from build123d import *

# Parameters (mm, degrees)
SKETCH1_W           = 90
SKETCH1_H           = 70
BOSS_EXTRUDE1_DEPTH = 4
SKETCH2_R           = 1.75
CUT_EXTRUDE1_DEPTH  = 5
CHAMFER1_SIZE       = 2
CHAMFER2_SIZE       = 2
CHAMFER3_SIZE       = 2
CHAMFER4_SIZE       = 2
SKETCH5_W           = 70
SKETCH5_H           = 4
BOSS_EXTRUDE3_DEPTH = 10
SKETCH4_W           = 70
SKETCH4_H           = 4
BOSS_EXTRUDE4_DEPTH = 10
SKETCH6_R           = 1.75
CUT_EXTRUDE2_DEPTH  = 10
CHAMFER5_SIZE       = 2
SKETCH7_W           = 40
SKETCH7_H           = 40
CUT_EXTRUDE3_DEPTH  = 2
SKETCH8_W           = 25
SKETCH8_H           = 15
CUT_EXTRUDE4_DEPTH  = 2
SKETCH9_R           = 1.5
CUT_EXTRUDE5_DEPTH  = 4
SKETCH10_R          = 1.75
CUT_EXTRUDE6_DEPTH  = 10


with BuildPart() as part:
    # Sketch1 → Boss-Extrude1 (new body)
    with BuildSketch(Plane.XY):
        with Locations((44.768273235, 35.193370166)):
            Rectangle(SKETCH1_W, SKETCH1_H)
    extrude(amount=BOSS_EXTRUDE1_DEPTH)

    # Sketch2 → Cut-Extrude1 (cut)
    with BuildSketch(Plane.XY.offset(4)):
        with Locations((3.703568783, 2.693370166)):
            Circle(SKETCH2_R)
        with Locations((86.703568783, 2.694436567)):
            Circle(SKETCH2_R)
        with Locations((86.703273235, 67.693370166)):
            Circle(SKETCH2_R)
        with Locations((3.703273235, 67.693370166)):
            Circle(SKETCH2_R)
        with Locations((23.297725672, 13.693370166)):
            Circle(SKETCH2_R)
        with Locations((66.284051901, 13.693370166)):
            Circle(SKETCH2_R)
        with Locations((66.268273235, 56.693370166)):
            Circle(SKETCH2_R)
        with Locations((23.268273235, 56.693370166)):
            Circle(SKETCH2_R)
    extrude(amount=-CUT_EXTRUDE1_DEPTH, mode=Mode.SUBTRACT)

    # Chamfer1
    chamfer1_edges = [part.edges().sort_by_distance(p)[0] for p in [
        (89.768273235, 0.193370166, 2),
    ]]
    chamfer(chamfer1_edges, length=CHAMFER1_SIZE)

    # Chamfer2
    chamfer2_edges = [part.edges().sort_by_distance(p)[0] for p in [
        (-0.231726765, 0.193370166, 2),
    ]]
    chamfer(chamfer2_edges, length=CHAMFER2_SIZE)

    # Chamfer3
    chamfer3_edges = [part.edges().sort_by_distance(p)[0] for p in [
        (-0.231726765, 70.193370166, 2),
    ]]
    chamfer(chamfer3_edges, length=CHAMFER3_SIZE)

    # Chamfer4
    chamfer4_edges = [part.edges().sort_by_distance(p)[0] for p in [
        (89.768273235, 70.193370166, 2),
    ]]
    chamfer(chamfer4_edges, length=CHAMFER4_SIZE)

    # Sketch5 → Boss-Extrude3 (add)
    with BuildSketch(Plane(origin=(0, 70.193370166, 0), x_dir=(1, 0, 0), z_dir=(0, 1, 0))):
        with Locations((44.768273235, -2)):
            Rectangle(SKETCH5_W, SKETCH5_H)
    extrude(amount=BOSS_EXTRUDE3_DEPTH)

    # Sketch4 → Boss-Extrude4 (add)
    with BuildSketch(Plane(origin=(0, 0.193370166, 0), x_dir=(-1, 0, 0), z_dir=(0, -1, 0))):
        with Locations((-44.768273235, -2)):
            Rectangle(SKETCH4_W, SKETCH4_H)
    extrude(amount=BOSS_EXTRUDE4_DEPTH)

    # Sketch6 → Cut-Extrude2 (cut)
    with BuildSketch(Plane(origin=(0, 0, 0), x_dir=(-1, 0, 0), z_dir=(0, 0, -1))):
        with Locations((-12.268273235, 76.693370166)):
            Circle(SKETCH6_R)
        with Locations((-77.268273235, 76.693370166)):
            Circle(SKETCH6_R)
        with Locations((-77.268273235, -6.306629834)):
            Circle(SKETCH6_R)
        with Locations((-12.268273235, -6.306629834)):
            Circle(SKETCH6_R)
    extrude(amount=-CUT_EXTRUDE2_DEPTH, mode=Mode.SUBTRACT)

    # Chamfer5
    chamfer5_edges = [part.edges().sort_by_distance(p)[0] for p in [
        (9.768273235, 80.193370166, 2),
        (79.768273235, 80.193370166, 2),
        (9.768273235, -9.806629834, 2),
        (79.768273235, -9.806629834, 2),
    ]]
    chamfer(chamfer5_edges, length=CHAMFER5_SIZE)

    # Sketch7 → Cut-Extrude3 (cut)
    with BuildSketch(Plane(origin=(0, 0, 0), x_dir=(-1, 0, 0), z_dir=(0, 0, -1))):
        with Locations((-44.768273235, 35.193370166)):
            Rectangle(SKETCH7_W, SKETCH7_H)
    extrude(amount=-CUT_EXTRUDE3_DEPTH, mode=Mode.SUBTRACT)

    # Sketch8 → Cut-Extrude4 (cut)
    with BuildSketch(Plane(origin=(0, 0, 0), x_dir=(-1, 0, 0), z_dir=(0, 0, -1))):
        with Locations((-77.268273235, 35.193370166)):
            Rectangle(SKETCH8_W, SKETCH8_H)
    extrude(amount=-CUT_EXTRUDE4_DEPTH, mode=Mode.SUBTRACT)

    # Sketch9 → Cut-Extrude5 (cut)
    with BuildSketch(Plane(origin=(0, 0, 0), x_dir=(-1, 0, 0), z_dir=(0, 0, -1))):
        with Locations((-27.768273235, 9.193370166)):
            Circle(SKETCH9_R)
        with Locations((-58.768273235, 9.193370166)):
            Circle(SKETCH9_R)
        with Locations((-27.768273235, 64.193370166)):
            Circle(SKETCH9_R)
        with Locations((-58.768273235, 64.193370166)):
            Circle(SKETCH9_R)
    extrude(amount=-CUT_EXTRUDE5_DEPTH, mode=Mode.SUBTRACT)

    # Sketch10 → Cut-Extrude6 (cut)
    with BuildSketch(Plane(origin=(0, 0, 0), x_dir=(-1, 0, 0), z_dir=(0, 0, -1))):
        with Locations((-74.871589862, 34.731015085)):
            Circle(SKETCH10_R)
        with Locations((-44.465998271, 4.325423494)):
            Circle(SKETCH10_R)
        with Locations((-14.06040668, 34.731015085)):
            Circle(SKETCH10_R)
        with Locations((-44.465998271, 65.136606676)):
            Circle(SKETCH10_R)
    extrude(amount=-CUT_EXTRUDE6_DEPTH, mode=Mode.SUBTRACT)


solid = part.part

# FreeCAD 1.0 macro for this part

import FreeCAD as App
import Part
import Sketcher


def edges_at(feature, points):
    """Names of the edges that pass closest to the given points."""
    edges = feature.Shape.Edges
    near = lambda p: min(range(len(edges)), key=lambda i: edges[i].distToShape(Part.Vertex(*p))[0])
    return sorted({f"Edge{near(p) + 1}" for p in points})

doc = App.newDocument("Part")
params = doc.addObject("Spreadsheet::Sheet", "Params")
for row, (alias, value) in enumerate([
    ("sketch1_width", "90 mm"),
    ("sketch1_height", "70 mm"),
    ("pad1_length", "4 mm"),
    ("sketch2_diameter", "3.5 mm"),
    ("pocket1_length", "5 mm"),
    ("chamfer_size", "2 mm"),
    ("chamfer2_size", "2 mm"),
    ("chamfer3_size", "2 mm"),
    ("chamfer4_size", "2 mm"),
    ("sketch3_width", "70 mm"),
    ("sketch3_height", "4 mm"),
    ("pad2_length", "10 mm"),
    ("sketch4_width", "70 mm"),
    ("sketch4_height", "4 mm"),
    ("pad3_length", "10 mm"),
    ("sketch5_diameter", "3.5 mm"),
    ("pocket2_length", "10 mm"),
    ("chamfer5_size", "2 mm"),
    ("sketch6_width", "40 mm"),
    ("pocket3_length", "2 mm"),
    ("sketch7_width", "25 mm"),
    ("sketch7_height", "15 mm"),
    ("pocket4_length", "2 mm"),
    ("sketch8_diameter", "3 mm"),
    ("pocket5_length", "4 mm"),
    ("sketch9_diameter", "3.5 mm"),
    ("pocket6_length", "10 mm"),
], start=1):
    params.set(f"A{row}", alias)
    params.set(f"B{row}", "=" + value)
    params.setAlias(f"B{row}", alias)

body = doc.addObject("PartDesign::Body", "Body")

# Sketch on XY plane
sketch1 = body.newObject("Sketcher::SketchObject", "Sketch")
sketch1.AttachmentSupport = (doc.getObject("XY_Plane"), [""])
sketch1.MapMode = "FlatFace"
sketch1.addGeometry([
    Part.LineSegment(App.Vector(0, 70, 0), App.Vector(0, 0, 0)),
    Part.LineSegment(App.Vector(0, 0, 0), App.Vector(90, 0, 0)),
    Part.LineSegment(App.Vector(90, 0, 0), App.Vector(90, 70, 0)),
    Part.LineSegment(App.Vector(90, 70, 0), App.Vector(0, 70, 0)),
], False)
sketch1.addConstraint([
    Sketcher.Constraint("Coincident", 0, 2, 1, 1),
    Sketcher.Constraint("Coincident", 1, 2, 2, 1),
    Sketcher.Constraint("Coincident", 2, 2, 3, 1),
    Sketcher.Constraint("Coincident", 3, 2, 0, 1),
    Sketcher.Constraint("Vertical", 0),
    Sketcher.Constraint("Horizontal", 1),
    Sketcher.Constraint("Vertical", 2),
    Sketcher.Constraint("Horizontal", 3),
    Sketcher.Constraint("DistanceX", 1, 1, 1, 2, 90.0),
    Sketcher.Constraint("DistanceY", 0, 2, 0, 1, 70.0),
    Sketcher.Constraint("DistanceY", -1, 1, 0, 2, 0.19337),
    Sketcher.Constraint("DistanceX", 0, 2, -1, 1, 0.231727),
])
sketch1.setExpression("Constraints[8]", "Params.sketch1_width")
sketch1.setExpression("Constraints[9]", "Params.sketch1_height")
pad1 = body.newObject("PartDesign::Pad", "Pad")
pad1.Profile = sketch1
pad1.setExpression("Length", "Params.pad1_length")

# Sketch on XY plane
sketch2 = body.newObject("Sketcher::SketchObject", "Sketch001")
sketch2.AttachmentSupport = (doc.getObject("XY_Plane"), [""])
sketch2.MapMode = "FlatFace"
sketch2.AttachmentOffset = App.Placement(App.Vector(0, 0, 4), App.Rotation())
sketch2.addGeometry([
    Part.Circle(App.Vector(3.7, 2.7, 0), App.Vector(0, 0, 1), 1.8),  # 0
    Part.Circle(App.Vector(86.7, 2.7, 0), App.Vector(0, 0, 1), 1.8),  # 1
    Part.Circle(App.Vector(86.7, 67.7, 0), App.Vector(0, 0, 1), 1.8),  # 2
    Part.Circle(App.Vector(3.7, 67.7, 0), App.Vector(0, 0, 1), 1.8),  # 3
    Part.Circle(App.Vector(23.3, 13.7, 0), App.Vector(0, 0, 1), 1.8),  # 4
    Part.Circle(App.Vector(66.3, 13.7, 0), App.Vector(0, 0, 1), 1.8),  # 5
    Part.Circle(App.Vector(66.3, 56.7, 0), App.Vector(0, 0, 1), 1.8),  # 6
    Part.Circle(App.Vector(23.3, 56.7, 0), App.Vector(0, 0, 1), 1.8),  # 7
], False)
sketch2.addConstraint([
    Sketcher.Constraint("Equal", 0, 1),
    Sketcher.Constraint("Equal", 1, 2),
    Sketcher.Constraint("Equal", 2, 3),
    Sketcher.Constraint("Equal", 3, 4),
    Sketcher.Constraint("Equal", 4, 5),
    Sketcher.Constraint("Equal", 5, 6),
    Sketcher.Constraint("Equal", 6, 7),
    Sketcher.Constraint("Horizontal", 2, 3, 3, 3),
    Sketcher.Constraint("Horizontal", 4, 3, 5, 3),
    Sketcher.Constraint("Horizontal", 6, 3, 7, 3),
    Sketcher.Constraint("Diameter", 0, 3.5),
    Sketcher.Constraint("DistanceX", 0, 3, 1, 3, 83.0),
    Sketcher.Constraint("DistanceY", 0, 3, 2, 3, 65.0),
    Sketcher.Constraint("DistanceX", 3, 3, 2, 3, 83.0),
    Sketcher.Constraint("DistanceY", 0, 3, 4, 3, 11.0),
    Sketcher.Constraint("DistanceY", 6, 3, 2, 3, 11.0),
    Sketcher.Constraint("DistanceX", 7, 3, 6, 3, 43.0),
    Sketcher.Constraint("DistanceX", 6, 3, 2, 3, 20.435),
    Sketcher.Constraint("DistanceX", -1, 1, 0, 3, 3.703569),
    Sketcher.Constraint("DistanceY", -1, 1, 0, 3, 2.69337),
    Sketcher.Constraint("DistanceX", -1, 1, 5, 3, 66.284052),
    Sketcher.Constraint("DistanceX", 5, 3, 2, 3, 20.419221),
    Sketcher.Constraint("DistanceY", -1, 1, 1, 3, 2.694437),
    Sketcher.Constraint("DistanceX", -1, 1, 4, 3, 23.297726),
])
sketch2.setExpression("Constraints[10]", "Params.sketch2_diameter")
pocket1 = body.newObject("PartDesign::Pocket", "Pocket")
pocket1.Profile = sketch2
pocket1.setExpression("Length", "Params.pocket1_length")
doc.recompute()

chamfer = body.newObject("PartDesign::Chamfer", "Chamfer")
chamfer.Base = (pocket1, edges_at(pocket1, [(89.768, 0.193, 2)]))
chamfer.setExpression("Size", "Params.chamfer_size")
doc.recompute()

chamfer2 = body.newObject("PartDesign::Chamfer", "Chamfer001")
chamfer2.Base = (chamfer, edges_at(chamfer, [(-0.232, 0.193, 2)]))
chamfer2.setExpression("Size", "Params.chamfer2_size")
doc.recompute()

chamfer3 = body.newObject("PartDesign::Chamfer", "Chamfer002")
chamfer3.Base = (chamfer2, edges_at(chamfer2, [(-0.232, 70.193, 2)]))
chamfer3.setExpression("Size", "Params.chamfer3_size")
doc.recompute()

chamfer4 = body.newObject("PartDesign::Chamfer", "Chamfer003")
chamfer4.Base = (chamfer3, edges_at(chamfer3, [(89.768, 70.193, 2)]))
chamfer4.setExpression("Size", "Params.chamfer4_size")

# Sketch on XZ plane
sketch3 = body.newObject("Sketcher::SketchObject", "Sketch002")
sketch3.AttachmentSupport = (doc.getObject("XZ_Plane"), [""])
sketch3.MapMode = "FlatFace"
sketch3.AttachmentOffset = App.Placement(App.Vector(0, 0, -70.19337), App.Rotation())
sketch3.addGeometry([
    Part.LineSegment(App.Vector(9.8, 0, 0), App.Vector(9.8, 4, 0)),
    Part.LineSegment(App.Vector(9.8, 4, 0), App.Vector(79.8, 4, 0)),
    Part.LineSegment(App.Vector(79.8, 4, 0), App.Vector(79.8, 0, 0)),
    Part.LineSegment(App.Vector(79.8, 0, 0), App.Vector(9.8, 0, 0)),
], False)
sketch3.addConstraint([
    Sketcher.Constraint("Coincident", 0, 2, 1, 1),
    Sketcher.Constraint("Coincident", 1, 2, 2, 1),
    Sketcher.Constraint("Coincident", 2, 2, 3, 1),
    Sketcher.Constraint("Coincident", 3, 2, 0, 1),
    Sketcher.Constraint("Vertical", 0),
    Sketcher.Constraint("Horizontal", 1),
    Sketcher.Constraint("Vertical", 2),
    Sketcher.Constraint("Horizontal", 3),
    Sketcher.Constraint("PointOnObject", 2, 2, -1),
    Sketcher.Constraint("DistanceX", 1, 1, 1, 2, 70.0),
    Sketcher.Constraint("DistanceY", 0, 1, 0, 2, 4.0),
    Sketcher.Constraint("DistanceX", -1, 1, 0, 2, 9.768273),
])
sketch3.setExpression("Constraints[9]", "Params.sketch3_width")
sketch3.setExpression("Constraints[10]", "Params.sketch3_height")
pad2 = body.newObject("PartDesign::Pad", "Pad001")
pad2.Profile = sketch3
pad2.setExpression("Length", "Params.pad2_length")
pad2.Reversed = True

# Sketch on XZ plane
sketch4 = body.newObject("Sketcher::SketchObject", "Sketch003")
sketch4.AttachmentSupport = (doc.getObject("XZ_Plane"), [""])
sketch4.MapMode = "FlatFace"
sketch4.AttachmentOffset = App.Placement(App.Vector(0, 0, -0.19337), App.Rotation())
sketch4.addGeometry([
    Part.LineSegment(App.Vector(79.8, 0, 0), App.Vector(79.8, 4, 0)),
    Part.LineSegment(App.Vector(79.8, 4, 0), App.Vector(9.8, 4, 0)),
    Part.LineSegment(App.Vector(9.8, 4, 0), App.Vector(9.8, 0, 0)),
    Part.LineSegment(App.Vector(9.8, 0, 0), App.Vector(79.8, 0, 0)),
], False)
sketch4.addConstraint([
    Sketcher.Constraint("Coincident", 0, 2, 1, 1),
    Sketcher.Constraint("Coincident", 1, 2, 2, 1),
    Sketcher.Constraint("Coincident", 2, 2, 3, 1),
    Sketcher.Constraint("Coincident", 3, 2, 0, 1),
    Sketcher.Constraint("Vertical", 0),
    Sketcher.Constraint("Horizontal", 1),
    Sketcher.Constraint("Vertical", 2),
    Sketcher.Constraint("Horizontal", 3),
    Sketcher.Constraint("PointOnObject", 2, 2, -1),
    Sketcher.Constraint("DistanceX", 1, 2, 1, 1, 70.0),
    Sketcher.Constraint("DistanceY", 0, 1, 0, 2, 4.0),
    Sketcher.Constraint("DistanceX", -1, 1, 0, 2, 79.768273),
])
sketch4.setExpression("Constraints[9]", "Params.sketch4_width")
sketch4.setExpression("Constraints[10]", "Params.sketch4_height")
pad3 = body.newObject("PartDesign::Pad", "Pad002")
pad3.Profile = sketch4
pad3.setExpression("Length", "Params.pad3_length")

# Sketch on XY plane
sketch5 = body.newObject("Sketcher::SketchObject", "Sketch004")
sketch5.AttachmentSupport = (doc.getObject("XY_Plane"), [""])
sketch5.MapMode = "FlatFace"
sketch5.addGeometry([
    Part.Circle(App.Vector(12.3, 76.7, 0), App.Vector(0, 0, 1), 1.8),
    Part.Circle(App.Vector(77.3, 76.7, 0), App.Vector(0, 0, 1), 1.8),
    Part.Circle(App.Vector(77.3, -6.3, 0), App.Vector(0, 0, 1), 1.8),
    Part.Circle(App.Vector(12.3, -6.3, 0), App.Vector(0, 0, 1), 1.8),
], False)
sketch5.addConstraint([
    Sketcher.Constraint("Equal", 0, 1),
    Sketcher.Constraint("Equal", 1, 2),
    Sketcher.Constraint("Equal", 2, 3),
    Sketcher.Constraint("Horizontal", 0, 3, 1, 3),
    Sketcher.Constraint("Horizontal", 2, 3, 3, 3),
    Sketcher.Constraint("Vertical", 1, 3, 2, 3),
    Sketcher.Constraint("Vertical", 0, 3, 3, 3),
    Sketcher.Constraint("Diameter", 0, 3.5),
    Sketcher.Constraint("DistanceX", 0, 3, 1, 3, 65.0),
    Sketcher.Constraint("DistanceY", 2, 3, 1, 3, 83.0),
    Sketcher.Constraint("DistanceY", -1, 1, 0, 3, 76.69337),
    Sketcher.Constraint("DistanceX", -1, 1, 0, 3, 12.268273),
])
sketch5.setExpression("Constraints[7]", "Params.sketch5_diameter")
pocket2 = body.newObject("PartDesign::Pocket", "Pocket001")
pocket2.Profile = sketch5
pocket2.setExpression("Length", "Params.pocket2_length")
pocket2.Reversed = True
doc.recompute()

chamfer5 = body.newObject("PartDesign::Chamfer", "Chamfer004")
chamfer5.Base = (pocket2, edges_at(pocket2, [
    (9.768, 80.193, 2),
    (79.768, 80.193, 2),
    (9.768, -9.807, 2),
    (79.768, -9.807, 2),
]))
chamfer5.setExpression("Size", "Params.chamfer5_size")

# Sketch on XY plane
sketch6 = body.newObject("Sketcher::SketchObject", "Sketch005")
sketch6.AttachmentSupport = (doc.getObject("XY_Plane"), [""])
sketch6.MapMode = "FlatFace"
sketch6.addGeometry([
    Part.LineSegment(App.Vector(65, 55, 0), App.Vector(65, 15, 0)),
    Part.LineSegment(App.Vector(65, 15, 0), App.Vector(25, 15, 0)),
    Part.LineSegment(App.Vector(25, 15, 0), App.Vector(25, 55, 0)),
    Part.LineSegment(App.Vector(25, 55, 0), App.Vector(65, 55, 0)),
], False)
sketch6.addConstraint([
    Sketcher.Constraint("Coincident", 0, 2, 1, 1),
    Sketcher.Constraint("Coincident", 1, 2, 2, 1),
    Sketcher.Constraint("Coincident", 2, 2, 3, 1),
    Sketcher.Constraint("Coincident", 3, 2, 0, 1),
    Sketcher.Constraint("Vertical", 0),
    Sketcher.Constraint("Horizontal", 1),
    Sketcher.Constraint("Vertical", 2),
    Sketcher.Constraint("Horizontal", 3),
    Sketcher.Constraint("Equal", 3, 0),
    Sketcher.Constraint("DistanceX", 1, 2, 1, 1, 40.0),
    Sketcher.Constraint("DistanceY", -1, 1, 0, 2, 15.19337),
    Sketcher.Constraint("DistanceX", -1, 1, 0, 2, 64.768273),
])
sketch6.setExpression("Constraints[9]", "Params.sketch6_width")
pocket3 = body.newObject("PartDesign::Pocket", "Pocket002")
pocket3.Profile = sketch6
pocket3.setExpression("Length", "Params.pocket3_length")
pocket3.Reversed = True

# Sketch on XY plane
sketch7 = body.newObject("Sketcher::SketchObject", "Sketch006")
sketch7.AttachmentSupport = (doc.getObject("XY_Plane"), [""])
sketch7.MapMode = "FlatFace"
sketch7.addGeometry([
    Part.LineSegment(App.Vector(90, 43, 0), App.Vector(90, 28, 0)),
    Part.LineSegment(App.Vector(90, 28, 0), App.Vector(65, 28, 0)),
    Part.LineSegment(App.Vector(65, 28, 0), App.Vector(65, 43, 0)),
    Part.LineSegment(App.Vector(65, 43, 0), App.Vector(90, 43, 0)),
], False)
sketch7.addConstraint([
    Sketcher.Constraint("Coincident", 0, 2, 1, 1),
    Sketcher.Constraint("Coincident", 1, 2, 2, 1),
    Sketcher.Constraint("Coincident", 2, 2, 3, 1),
    Sketcher.Constraint("Coincident", 3, 2, 0, 1),
    Sketcher.Constraint("Vertical", 0),
    Sketcher.Constraint("Horizontal", 1),
    Sketcher.Constraint("Vertical", 2),
    Sketcher.Constraint("Horizontal", 3),
    Sketcher.Constraint("DistanceX", 1, 2, 1, 1, 25.0),
    Sketcher.Constraint("DistanceY", 0, 2, 0, 1, 15.0),
    Sketcher.Constraint("DistanceY", -1, 1, 0, 2, 27.69337),
    Sketcher.Constraint("DistanceX", -1, 1, 0, 2, 89.768273),
])
sketch7.setExpression("Constraints[8]", "Params.sketch7_width")
sketch7.setExpression("Constraints[9]", "Params.sketch7_height")
pocket4 = body.newObject("PartDesign::Pocket", "Pocket003")
pocket4.Profile = sketch7
pocket4.setExpression("Length", "Params.pocket4_length")
pocket4.Reversed = True

# Sketch on XY plane
sketch8 = body.newObject("Sketcher::SketchObject", "Sketch007")
sketch8.AttachmentSupport = (doc.getObject("XY_Plane"), [""])
sketch8.MapMode = "FlatFace"
sketch8.addGeometry([
    Part.Circle(App.Vector(27.8, 9.2, 0), App.Vector(0, 0, 1), 1.5),
    Part.Circle(App.Vector(58.8, 9.2, 0), App.Vector(0, 0, 1), 1.5),
    Part.Circle(App.Vector(27.8, 64.2, 0), App.Vector(0, 0, 1), 1.5),
    Part.Circle(App.Vector(58.8, 64.2, 0), App.Vector(0, 0, 1), 1.5),
], False)
sketch8.addConstraint([
    Sketcher.Constraint("Equal", 0, 1),
    Sketcher.Constraint("Equal", 1, 2),
    Sketcher.Constraint("Equal", 2, 3),
    Sketcher.Constraint("Horizontal", 0, 3, 1, 3),
    Sketcher.Constraint("Horizontal", 2, 3, 3, 3),
    Sketcher.Constraint("Vertical", 0, 3, 2, 3),
    Sketcher.Constraint("Vertical", 1, 3, 3, 3),
    Sketcher.Constraint("Diameter", 0, 3.0),
    Sketcher.Constraint("DistanceX", 0, 3, 1, 3, 31.0),
    Sketcher.Constraint("DistanceY", 0, 3, 2, 3, 55.0),
    Sketcher.Constraint("DistanceY", -1, 1, 0, 3, 9.19337),
    Sketcher.Constraint("DistanceX", -1, 1, 0, 3, 27.768273),
])
sketch8.setExpression("Constraints[7]", "Params.sketch8_diameter")
pocket5 = body.newObject("PartDesign::Pocket", "Pocket004")
pocket5.Profile = sketch8
pocket5.setExpression("Length", "Params.pocket5_length")
pocket5.Reversed = True

# Sketch on XY plane
sketch9 = body.newObject("Sketcher::SketchObject", "Sketch008")
sketch9.AttachmentSupport = (doc.getObject("XY_Plane"), [""])
sketch9.MapMode = "FlatFace"
sketch9.addGeometry([
    Part.Circle(App.Vector(74.9, 34.7, 0), App.Vector(0, 0, 1), 1.8),
    Part.Circle(App.Vector(44.5, 4.3, 0), App.Vector(0, 0, 1), 1.8),
    Part.Circle(App.Vector(14.1, 34.7, 0), App.Vector(0, 0, 1), 1.8),
    Part.Circle(App.Vector(44.5, 65.1, 0), App.Vector(0, 0, 1), 1.8),
], False)
sketch9.addConstraint([
    Sketcher.Constraint("Equal", 0, 1),
    Sketcher.Constraint("Equal", 1, 2),
    Sketcher.Constraint("Equal", 2, 3),
    Sketcher.Constraint("Horizontal", 0, 3, 2, 3),
    Sketcher.Constraint("Vertical", 1, 3, 3, 3),
    Sketcher.Constraint("Diameter", 0, 3.5),
    Sketcher.Constraint("DistanceX", -1, 1, 1, 3, 44.465998),
    Sketcher.Constraint("DistanceX", -1, 1, 0, 3, 74.87159),
    Sketcher.Constraint("DistanceY", 1, 3, 0, 3, 30.405592),
    Sketcher.Constraint("DistanceX", 2, 3, 1, 3, 30.405592),
    Sketcher.Constraint("DistanceY", 0, 3, 3, 3, 30.405592),
    Sketcher.Constraint("DistanceY", -1, 1, 0, 3, 34.731015),
])
sketch9.setExpression("Constraints[5]", "Params.sketch9_diameter")
pocket6 = body.newObject("PartDesign::Pocket", "Pocket005")
pocket6.Profile = sketch9
pocket6.setExpression("Length", "Params.pocket6_length")
pocket6.Reversed = True

doc.recompute()
